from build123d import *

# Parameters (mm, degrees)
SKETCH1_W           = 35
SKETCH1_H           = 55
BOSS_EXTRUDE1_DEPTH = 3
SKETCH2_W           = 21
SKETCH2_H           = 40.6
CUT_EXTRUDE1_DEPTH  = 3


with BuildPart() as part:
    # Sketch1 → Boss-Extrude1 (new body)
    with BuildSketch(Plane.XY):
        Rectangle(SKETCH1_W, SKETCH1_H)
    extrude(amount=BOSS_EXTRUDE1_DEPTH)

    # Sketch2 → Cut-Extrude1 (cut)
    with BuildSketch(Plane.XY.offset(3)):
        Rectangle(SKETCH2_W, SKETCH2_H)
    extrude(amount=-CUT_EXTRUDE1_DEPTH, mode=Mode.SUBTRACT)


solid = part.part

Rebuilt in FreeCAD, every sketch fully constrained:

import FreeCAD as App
import Part
import Sketcher
Q = App.Units.Quantity


def add_polygon(sketch, points):
    """Adds a closed chain of lines whose ends are joined by coincident constraints."""
    first, n = sketch.GeometryCount, len(points)
    for a, b in zip(points, points[1:] + points[:1]):
        sketch.addGeometry(Part.LineSegment(App.Vector(*a, 0), App.Vector(*b, 0)), False)
    for i in range(n):
        sketch.addConstraint(Sketcher.Constraint("Coincident", first + i, 2, first + (i + 1) % n, 1))

doc = App.newDocument("Part")
body = doc.addObject("PartDesign::Body", "Body")

# Sketch on XY plane
sketch1 = body.newObject("Sketcher::SketchObject", "Sketch")
sketch1.AttachmentSupport = (doc.getObject("XY_Plane"), [""])
sketch1.MapMode = "FlatFace"
add_polygon(sketch1, [(-17.5, 27.5), (-17.5, -27.5), (17.5, -27.5), (17.5, 27.5)])  # lines 0-3
sketch1.addConstraint(Sketcher.Constraint("Vertical", 0))
sketch1.addConstraint(Sketcher.Constraint("Horizontal", 1))
sketch1.addConstraint(Sketcher.Constraint("Vertical", 2))
sketch1.addConstraint(Sketcher.Constraint("Horizontal", 3))
sketch1.addConstraint(Sketcher.Constraint("Symmetric", 0, 2, 2, 2, -1, 1))
sketch1.addConstraint(Sketcher.Constraint("DistanceX", 1, 1, 1, 2, Q("35 mm")))
sketch1.addConstraint(Sketcher.Constraint("DistanceY", 0, 2, 0, 1, Q("55 mm")))
pad1 = body.newObject("PartDesign::Pad", "Pad")
pad1.Profile = sketch1
pad1.Length = 3

# Sketch on XY plane
sketch2 = body.newObject("Sketcher::SketchObject", "Sketch001")
sketch2.AttachmentSupport = (doc.getObject("XY_Plane"), [""])
sketch2.MapMode = "FlatFace"
sketch2.AttachmentOffset = App.Placement(App.Vector(0, 0, 3), App.Rotation())
add_polygon(sketch2, [(-10.5, 20.3), (-10.5, -20.3), (10.5, -20.3), (10.5, 20.3)])  # lines 0-3
sketch2.addConstraint(Sketcher.Constraint("Vertical", 0))
sketch2.addConstraint(Sketcher.Constraint("Horizontal", 1))
sketch2.addConstraint(Sketcher.Constraint("Vertical", 2))
sketch2.addConstraint(Sketcher.Constraint("Horizontal", 3))
sketch2.addConstraint(Sketcher.Constraint("Symmetric", 0, 2, 2, 2, -1, 1))
sketch2.addConstraint(Sketcher.Constraint("DistanceX", 1, 1, 1, 2, Q("21 mm")))
sketch2.addConstraint(Sketcher.Constraint("DistanceY", 0, 2, 0, 1, Q("40.6 mm")))
pocket1 = body.newObject("PartDesign::Pocket", "Pocket")
pocket1.Profile = sketch2
pocket1.Length = 3

doc.recompute()
